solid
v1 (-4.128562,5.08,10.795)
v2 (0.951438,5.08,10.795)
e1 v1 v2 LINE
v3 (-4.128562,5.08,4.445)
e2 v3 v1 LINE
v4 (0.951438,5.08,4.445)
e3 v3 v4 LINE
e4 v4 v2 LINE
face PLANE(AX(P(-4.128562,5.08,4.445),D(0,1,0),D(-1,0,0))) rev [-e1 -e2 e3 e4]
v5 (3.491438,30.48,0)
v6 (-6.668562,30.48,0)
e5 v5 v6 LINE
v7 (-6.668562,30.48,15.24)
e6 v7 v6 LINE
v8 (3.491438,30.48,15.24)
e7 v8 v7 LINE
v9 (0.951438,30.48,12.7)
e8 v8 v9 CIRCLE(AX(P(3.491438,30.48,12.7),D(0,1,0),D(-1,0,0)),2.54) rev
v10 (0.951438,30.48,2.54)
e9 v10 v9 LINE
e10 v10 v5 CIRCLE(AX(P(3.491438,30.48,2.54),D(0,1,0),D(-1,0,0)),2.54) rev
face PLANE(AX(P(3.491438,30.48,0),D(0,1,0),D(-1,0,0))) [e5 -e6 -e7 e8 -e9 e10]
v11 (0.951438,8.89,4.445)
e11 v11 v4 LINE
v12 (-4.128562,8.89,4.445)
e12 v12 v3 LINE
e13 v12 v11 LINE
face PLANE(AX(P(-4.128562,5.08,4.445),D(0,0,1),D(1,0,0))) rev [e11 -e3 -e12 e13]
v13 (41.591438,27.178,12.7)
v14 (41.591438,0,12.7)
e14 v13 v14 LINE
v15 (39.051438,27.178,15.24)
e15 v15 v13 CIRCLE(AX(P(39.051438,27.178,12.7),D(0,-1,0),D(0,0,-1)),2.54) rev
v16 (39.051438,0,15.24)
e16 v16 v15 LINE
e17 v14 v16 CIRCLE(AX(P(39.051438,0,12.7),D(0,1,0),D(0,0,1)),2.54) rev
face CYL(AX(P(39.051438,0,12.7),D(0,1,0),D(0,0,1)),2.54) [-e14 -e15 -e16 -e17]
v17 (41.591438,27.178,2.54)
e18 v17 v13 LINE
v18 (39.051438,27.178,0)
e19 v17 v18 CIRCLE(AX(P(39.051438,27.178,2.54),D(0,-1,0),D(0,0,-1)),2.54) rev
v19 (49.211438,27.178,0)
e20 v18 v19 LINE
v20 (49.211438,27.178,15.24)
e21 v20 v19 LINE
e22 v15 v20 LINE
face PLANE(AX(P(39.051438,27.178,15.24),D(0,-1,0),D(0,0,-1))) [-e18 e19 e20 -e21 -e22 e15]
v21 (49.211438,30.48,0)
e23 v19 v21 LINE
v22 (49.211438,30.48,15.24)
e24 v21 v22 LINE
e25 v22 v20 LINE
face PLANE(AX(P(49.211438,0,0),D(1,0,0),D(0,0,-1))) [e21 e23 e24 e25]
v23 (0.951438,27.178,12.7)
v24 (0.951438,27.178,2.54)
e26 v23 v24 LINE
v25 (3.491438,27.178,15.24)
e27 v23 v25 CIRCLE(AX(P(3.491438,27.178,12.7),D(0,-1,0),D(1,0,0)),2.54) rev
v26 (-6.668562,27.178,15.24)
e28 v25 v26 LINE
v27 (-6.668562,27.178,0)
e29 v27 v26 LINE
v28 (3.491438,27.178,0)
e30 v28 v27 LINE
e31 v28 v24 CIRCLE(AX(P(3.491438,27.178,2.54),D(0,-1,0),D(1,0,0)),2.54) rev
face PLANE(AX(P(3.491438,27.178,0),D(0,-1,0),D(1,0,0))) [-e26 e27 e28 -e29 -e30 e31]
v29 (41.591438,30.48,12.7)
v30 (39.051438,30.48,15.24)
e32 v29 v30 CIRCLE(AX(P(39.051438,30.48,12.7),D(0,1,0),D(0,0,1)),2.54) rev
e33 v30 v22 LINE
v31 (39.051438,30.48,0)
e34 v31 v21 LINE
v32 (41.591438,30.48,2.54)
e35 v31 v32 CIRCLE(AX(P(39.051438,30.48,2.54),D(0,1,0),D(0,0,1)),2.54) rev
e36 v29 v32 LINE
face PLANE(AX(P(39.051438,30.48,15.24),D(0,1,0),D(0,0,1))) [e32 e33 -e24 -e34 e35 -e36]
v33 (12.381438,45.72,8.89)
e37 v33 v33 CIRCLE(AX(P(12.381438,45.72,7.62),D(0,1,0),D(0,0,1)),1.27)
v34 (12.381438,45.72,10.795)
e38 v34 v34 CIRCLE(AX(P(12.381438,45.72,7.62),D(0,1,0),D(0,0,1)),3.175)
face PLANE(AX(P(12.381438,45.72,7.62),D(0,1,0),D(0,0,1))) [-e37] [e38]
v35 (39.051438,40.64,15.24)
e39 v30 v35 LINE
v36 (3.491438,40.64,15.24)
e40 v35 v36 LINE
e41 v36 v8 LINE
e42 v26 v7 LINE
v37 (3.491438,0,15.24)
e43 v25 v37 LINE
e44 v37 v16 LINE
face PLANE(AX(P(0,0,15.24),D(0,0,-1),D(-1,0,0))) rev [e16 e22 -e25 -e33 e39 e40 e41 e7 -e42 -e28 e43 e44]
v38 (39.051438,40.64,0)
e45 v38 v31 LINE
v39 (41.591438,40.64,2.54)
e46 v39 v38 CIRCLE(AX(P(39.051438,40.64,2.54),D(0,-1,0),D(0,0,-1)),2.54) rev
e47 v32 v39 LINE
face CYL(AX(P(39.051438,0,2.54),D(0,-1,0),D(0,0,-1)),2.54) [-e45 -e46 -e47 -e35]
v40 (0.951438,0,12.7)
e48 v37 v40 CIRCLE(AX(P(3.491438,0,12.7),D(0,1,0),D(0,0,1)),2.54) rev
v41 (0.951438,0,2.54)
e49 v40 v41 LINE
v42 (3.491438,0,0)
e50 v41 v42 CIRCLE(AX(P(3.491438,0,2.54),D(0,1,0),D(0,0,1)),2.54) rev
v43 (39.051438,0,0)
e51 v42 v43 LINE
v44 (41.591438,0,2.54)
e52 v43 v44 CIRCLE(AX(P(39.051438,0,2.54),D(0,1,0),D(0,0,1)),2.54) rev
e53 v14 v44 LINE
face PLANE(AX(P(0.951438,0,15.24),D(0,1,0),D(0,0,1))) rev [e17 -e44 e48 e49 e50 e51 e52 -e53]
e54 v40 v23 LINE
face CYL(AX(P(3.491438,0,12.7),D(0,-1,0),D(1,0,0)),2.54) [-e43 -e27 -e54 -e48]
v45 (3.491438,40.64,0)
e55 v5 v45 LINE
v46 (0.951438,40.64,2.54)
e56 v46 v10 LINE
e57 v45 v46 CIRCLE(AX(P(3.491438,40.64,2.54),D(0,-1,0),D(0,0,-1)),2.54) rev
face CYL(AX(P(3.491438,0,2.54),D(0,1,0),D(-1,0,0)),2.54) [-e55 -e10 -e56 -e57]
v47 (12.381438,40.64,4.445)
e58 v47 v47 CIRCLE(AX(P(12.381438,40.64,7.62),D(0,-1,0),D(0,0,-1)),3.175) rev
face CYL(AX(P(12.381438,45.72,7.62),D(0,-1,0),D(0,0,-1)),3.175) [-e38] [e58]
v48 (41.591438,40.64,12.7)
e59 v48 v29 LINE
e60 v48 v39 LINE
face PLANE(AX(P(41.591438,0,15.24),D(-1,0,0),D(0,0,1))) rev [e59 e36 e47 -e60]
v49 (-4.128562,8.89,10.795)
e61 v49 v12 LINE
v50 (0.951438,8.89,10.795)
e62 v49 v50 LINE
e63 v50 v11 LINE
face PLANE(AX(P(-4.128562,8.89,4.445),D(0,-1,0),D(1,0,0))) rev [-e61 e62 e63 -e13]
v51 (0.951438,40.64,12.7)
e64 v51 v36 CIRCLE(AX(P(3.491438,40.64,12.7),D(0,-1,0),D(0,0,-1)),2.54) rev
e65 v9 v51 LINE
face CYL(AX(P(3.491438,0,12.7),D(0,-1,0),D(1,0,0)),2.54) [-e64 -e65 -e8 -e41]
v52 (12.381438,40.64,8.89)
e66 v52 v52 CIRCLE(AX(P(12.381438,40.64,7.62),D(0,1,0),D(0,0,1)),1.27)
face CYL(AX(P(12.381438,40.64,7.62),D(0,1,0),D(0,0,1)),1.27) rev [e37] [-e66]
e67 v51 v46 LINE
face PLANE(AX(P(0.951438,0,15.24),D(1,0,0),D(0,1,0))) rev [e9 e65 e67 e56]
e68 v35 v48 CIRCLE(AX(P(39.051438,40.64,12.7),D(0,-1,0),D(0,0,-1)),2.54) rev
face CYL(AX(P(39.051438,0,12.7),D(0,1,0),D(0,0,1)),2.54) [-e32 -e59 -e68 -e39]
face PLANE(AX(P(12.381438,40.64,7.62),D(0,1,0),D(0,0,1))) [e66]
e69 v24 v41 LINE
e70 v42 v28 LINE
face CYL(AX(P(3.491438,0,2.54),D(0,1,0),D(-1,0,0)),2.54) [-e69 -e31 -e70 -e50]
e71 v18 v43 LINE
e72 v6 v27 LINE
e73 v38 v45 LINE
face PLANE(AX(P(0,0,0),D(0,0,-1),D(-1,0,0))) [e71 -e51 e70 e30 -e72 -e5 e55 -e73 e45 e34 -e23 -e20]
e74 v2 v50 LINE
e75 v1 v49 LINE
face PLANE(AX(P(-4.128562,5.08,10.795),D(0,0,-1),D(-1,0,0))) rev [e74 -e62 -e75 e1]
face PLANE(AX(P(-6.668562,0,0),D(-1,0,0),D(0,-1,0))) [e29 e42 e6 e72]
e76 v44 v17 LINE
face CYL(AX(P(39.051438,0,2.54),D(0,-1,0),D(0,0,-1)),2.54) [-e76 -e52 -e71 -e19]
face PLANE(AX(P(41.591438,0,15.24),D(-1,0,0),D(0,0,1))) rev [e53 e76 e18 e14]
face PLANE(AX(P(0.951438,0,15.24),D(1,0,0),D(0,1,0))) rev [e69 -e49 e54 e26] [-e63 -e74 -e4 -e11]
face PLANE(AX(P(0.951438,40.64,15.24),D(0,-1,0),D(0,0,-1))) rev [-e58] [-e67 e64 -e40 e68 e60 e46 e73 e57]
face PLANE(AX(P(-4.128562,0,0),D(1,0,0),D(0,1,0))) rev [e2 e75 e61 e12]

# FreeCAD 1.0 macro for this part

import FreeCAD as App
import Part
import Sketcher

V = App.Vector
Q = App.Units.Quantity


def edges_at(feature, points):
    """Names of the edges that pass closest to the given points."""
    edges = feature.Shape.Edges
    near = lambda p: min(range(len(edges)), key=lambda i: edges[i].distToShape(Part.Vertex(*p))[0])
    return sorted({f"Edge{near(p) + 1}" for p in points})

doc = App.newDocument("Part")
body = doc.addObject("PartDesign::Body", "Body")

sketch1 = body.newObject("Sketcher::SketchObject", "Sketch")
sketch1.AttachmentSupport = (doc.getObject("XY_Plane"), [""])
sketch1.MapMode = "FlatFace"
sketch1.addGeometry(Part.LineSegment(V(1, 41, 0), V(1, 0, 0)), False)
sketch1.addGeometry(Part.LineSegment(V(1, 0, 0), V(42, 0, 0)), False)
sketch1.addGeometry(Part.LineSegment(V(42, 0, 0), V(42, 41, 0)), False)
sketch1.addGeometry(Part.LineSegment(V(42, 41, 0), V(1, 41, 0)), False)
sketch1.addConstraint(Sketcher.Constraint("Coincident", 0, 2, 1, 1))
sketch1.addConstraint(Sketcher.Constraint("Coincident", 1, 2, 2, 1))
sketch1.addConstraint(Sketcher.Constraint("Coincident", 2, 2, 3, 1))
sketch1.addConstraint(Sketcher.Constraint("Coincident", 3, 2, 0, 1))
sketch1.addConstraint(Sketcher.Constraint("Vertical", 0))
sketch1.addConstraint(Sketcher.Constraint("Horizontal", 1))
sketch1.addConstraint(Sketcher.Constraint("Vertical", 2))
sketch1.addConstraint(Sketcher.Constraint("Horizontal", 3))
sketch1.addConstraint(Sketcher.Constraint("PointOnObject", 0, 2, -1))
sketch1.addConstraint(Sketcher.Constraint("Equal", 3, 0))
sketch1.addConstraint(Sketcher.Constraint("DistanceX", 1, 1, 1, 2, Q("1.6 in")))
sketch1.addConstraint(Sketcher.Constraint("DistanceX", -1, 1, 0, 2, Q("0.951438 mm")))
pad1 = body.newObject("PartDesign::Pad", "Pad")
pad1.Profile = sketch1
pad1.Length = Q("0.6 in")

sketch2 = body.newObject("Sketcher::SketchObject", "Sketch001")
sketch2.AttachmentSupport = (doc.getObject("XZ_Plane"), [""])
sketch2.MapMode = "FlatFace"
sketch2.AttachmentOffset = App.Placement(V(0, 0, -1.6 * 25.4), App.Rotation())
sketch2.addGeometry(Part.Circle(V(12.4, 7.6, 0), V(0, 0, 1), 3.2), False)
sketch2.addConstraint(Sketcher.Constraint("Diameter", 0, Q("0.25 in")))
sketch2.addConstraint(Sketcher.Constraint("DistanceY", -1, 1, 0, 3, Q("0.3 in")))
sketch2.addConstraint(Sketcher.Constraint("DistanceX", -1, 1, 0, 3, Q("12.381438 mm")))
pad2 = body.newObject("PartDesign::Pad", "Pad001")
pad2.Profile = sketch2
pad2.Length = Q("0.2 in")
pad2.Reversed = True

sketch3 = body.newObject("Sketcher::SketchObject", "Sketch002")
sketch3.AttachmentSupport = (doc.getObject("XZ_Plane"), [""])
sketch3.MapMode = "FlatFace"
sketch3.AttachmentOffset = App.Placement(V(0, 0, -1.8 * 25.4), App.Rotation())
sketch3.addGeometry(Part.Circle(V(12.4, 7.6, 0), V(0, 0, 1), 1.3), False)
sketch3.addConstraint(Sketcher.Constraint("Diameter", 0, Q("0.1 in")))
sketch3.addConstraint(Sketcher.Constraint("DistanceY", -1, 1, 0, 3, Q("0.3 in")))
sketch3.addConstraint(Sketcher.Constraint("DistanceX", -1, 1, 0, 3, Q("12.381438 mm")))
pocket1 = body.newObject("PartDesign::Pocket", "Pocket")
pocket1.Profile = sketch3
pocket1.Length = Q("0.2 in")
pocket1.Reversed = True
doc.recompute()

fillet = body.newObject("PartDesign::Fillet", "Fillet")
fillet.Base = (pocket1, edges_at(pocket1, [
    (41.591, 20.32, 15.24),
    (0.951, 20.32, 15.24),
    (41.591, 20.32, 0),
    (0.951, 20.32, 0),
]))
fillet.Radius = Q("0.1 in")

sketch4 = body.newObject("Sketcher::SketchObject", "Sketch003")
sketch4.AttachmentSupport = (doc.getObject("YZ_Plane"), [""])
sketch4.MapMode = "FlatFace"
sketch4.AttachmentOffset = App.Placement(V(0, 0, 0.951438), App.Rotation())
sketch4.addGeometry(Part.LineSegment(V(8.9, 4.4, 0), V(5.1, 4.4, 0)), False)
sketch4.addGeometry(Part.LineSegment(V(5.1, 4.4, 0), V(5.1, 10.8, 0)), False)
sketch4.addGeometry(Part.LineSegment(V(5.1, 10.8, 0), V(8.9, 10.8, 0)), False)
sketch4.addGeometry(Part.LineSegment(V(8.9, 10.8, 0), V(8.9, 4.4, 0)), False)
sketch4.addConstraint(Sketcher.Constraint("Coincident", 0, 2, 1, 1))
sketch4.addConstraint(Sketcher.Constraint("Coincident", 1, 2, 2, 1))
sketch4.addConstraint(Sketcher.Constraint("Coincident", 2, 2, 3, 1))
sketch4.addConstraint(Sketcher.Constraint("Coincident", 3, 2, 0, 1))
sketch4.addConstraint(Sketcher.Constraint("Horizontal", 0))
sketch4.addConstraint(Sketcher.Constraint("Vertical", 1))
sketch4.addConstraint(Sketcher.Constraint("Horizontal", 2))
sketch4.addConstraint(Sketcher.Constraint("Vertical", 3))
sketch4.addConstraint(Sketcher.Constraint("DistanceX", 0, 2, 0, 1, Q("0.15 in")))
sketch4.addConstraint(Sketcher.Constraint("DistanceY", 1, 1, 1, 2, Q("0.25 in")))
sketch4.addConstraint(Sketcher.Constraint("DistanceX", -1, 1, 0, 2, Q("0.2 in")))
sketch4.addConstraint(Sketcher.Constraint("DistanceY", -1, 1, 0, 2, Q("0.175 in")))
pad3 = body.newObject("PartDesign::Pad", "Pad002")
pad3.Profile = sketch4
pad3.Length = Q("0.2 in")
pad3.Reversed = True

sketch5 = body.newObject("Sketcher::SketchObject", "Sketch004")
sketch5.AttachmentSupport = (doc.getObject("YZ_Plane"), [""])
sketch5.MapMode = "FlatFace"
sketch5.AttachmentOffset = App.Placement(V(0, 0, 0.951438), App.Rotation())
sketch5.addGeometry(Part.LineSegment(V(30.5, 0, 0), V(27.2, 0, 0)), False)
sketch5.addGeometry(Part.LineSegment(V(27.2, 0, 0), V(27.2, 15.2, 0)), False)
sketch5.addGeometry(Part.LineSegment(V(27.2, 15.2, 0), V(30.5, 15.2, 0)), False)
sketch5.addGeometry(Part.LineSegment(V(30.5, 15.2, 0), V(30.5, 0, 0)), False)
sketch5.addConstraint(Sketcher.Constraint("Coincident", 0, 2, 1, 1))
sketch5.addConstraint(Sketcher.Constraint("Coincident", 1, 2, 2, 1))
sketch5.addConstraint(Sketcher.Constraint("Coincident", 2, 2, 3, 1))
sketch5.addConstraint(Sketcher.Constraint("Coincident", 3, 2, 0, 1))
sketch5.addConstraint(Sketcher.Constraint("Horizontal", 0))
sketch5.addConstraint(Sketcher.Constraint("Vertical", 1))
sketch5.addConstraint(Sketcher.Constraint("Horizontal", 2))
sketch5.addConstraint(Sketcher.Constraint("Vertical", 3))
sketch5.addConstraint(Sketcher.Constraint("PointOnObject", 0, 2, -1))
sketch5.addConstraint(Sketcher.Constraint("DistanceY", 1, 1, 1, 2, Q("0.6 in")))
sketch5.addConstraint(Sketcher.Constraint("DistanceX", 0, 2, 0, 1, Q("0.13 in")))
sketch5.addConstraint(Sketcher.Constraint("DistanceX", -1, 1, 2, 2, Q("1.2 in")))
pad4 = body.newObject("PartDesign::Pad", "Pad003")
pad4.Profile = sketch5
pad4.Type = "TwoLengths"
pad4.Length = Q("0.3 in")
pad4.Length2 = Q("0.1 in")
pad4.Reversed = True

sketch6 = body.newObject("Sketcher::SketchObject", "Sketch005")
sketch6.AttachmentSupport = (doc.getObject("YZ_Plane"), [""])
sketch6.MapMode = "FlatFace"
sketch6.AttachmentOffset = App.Placement(V(0, 0, 41.591438), App.Rotation())
sketch6.addGeometry(Part.LineSegment(V(30.5, 15.2, 0), V(27.2, 15.2, 0)), False)
sketch6.addGeometry(Part.LineSegment(V(27.2, 15.2, 0), V(27.2, 0, 0)), False)
sketch6.addGeometry(Part.LineSegment(V(27.2, 0, 0), V(30.5, 0, 0)), False)
sketch6.addGeometry(Part.LineSegment(V(30.5, 0, 0), V(30.5, 15.2, 0)), False)
sketch6.addConstraint(Sketcher.Constraint("Coincident", 0, 2, 1, 1))
sketch6.addConstraint(Sketcher.Constraint("Coincident", 1, 2, 2, 1))
sketch6.addConstraint(Sketcher.Constraint("Coincident", 2, 2, 3, 1))
sketch6.addConstraint(Sketcher.Constraint("Coincident", 3, 2, 0, 1))
sketch6.addConstraint(Sketcher.Constraint("Horizontal", 0))
sketch6.addConstraint(Sketcher.Constraint("Vertical", 1))
sketch6.addConstraint(Sketcher.Constraint("Horizontal", 2))
sketch6.addConstraint(Sketcher.Constraint("Vertical", 3))
sketch6.addConstraint(Sketcher.Constraint("PointOnObject", 1, 2, -1))
sketch6.addConstraint(Sketcher.Constraint("DistanceY", 1, 2, 1, 1, Q("0.6 in")))
sketch6.addConstraint(Sketcher.Constraint("DistanceX", 0, 2, 0, 1, Q("0.13 in")))
sketch6.addConstraint(Sketcher.Constraint("DistanceX", -1, 1, 2, 2, Q("1.2 in")))
pad5 = body.newObject("PartDesign::Pad", "Pad004")
pad5.Profile = sketch6
pad5.Type = "TwoLengths"
pad5.Length = Q("0.3 in")
pad5.Length2 = Q("0.1 in")

doc.recompute()
